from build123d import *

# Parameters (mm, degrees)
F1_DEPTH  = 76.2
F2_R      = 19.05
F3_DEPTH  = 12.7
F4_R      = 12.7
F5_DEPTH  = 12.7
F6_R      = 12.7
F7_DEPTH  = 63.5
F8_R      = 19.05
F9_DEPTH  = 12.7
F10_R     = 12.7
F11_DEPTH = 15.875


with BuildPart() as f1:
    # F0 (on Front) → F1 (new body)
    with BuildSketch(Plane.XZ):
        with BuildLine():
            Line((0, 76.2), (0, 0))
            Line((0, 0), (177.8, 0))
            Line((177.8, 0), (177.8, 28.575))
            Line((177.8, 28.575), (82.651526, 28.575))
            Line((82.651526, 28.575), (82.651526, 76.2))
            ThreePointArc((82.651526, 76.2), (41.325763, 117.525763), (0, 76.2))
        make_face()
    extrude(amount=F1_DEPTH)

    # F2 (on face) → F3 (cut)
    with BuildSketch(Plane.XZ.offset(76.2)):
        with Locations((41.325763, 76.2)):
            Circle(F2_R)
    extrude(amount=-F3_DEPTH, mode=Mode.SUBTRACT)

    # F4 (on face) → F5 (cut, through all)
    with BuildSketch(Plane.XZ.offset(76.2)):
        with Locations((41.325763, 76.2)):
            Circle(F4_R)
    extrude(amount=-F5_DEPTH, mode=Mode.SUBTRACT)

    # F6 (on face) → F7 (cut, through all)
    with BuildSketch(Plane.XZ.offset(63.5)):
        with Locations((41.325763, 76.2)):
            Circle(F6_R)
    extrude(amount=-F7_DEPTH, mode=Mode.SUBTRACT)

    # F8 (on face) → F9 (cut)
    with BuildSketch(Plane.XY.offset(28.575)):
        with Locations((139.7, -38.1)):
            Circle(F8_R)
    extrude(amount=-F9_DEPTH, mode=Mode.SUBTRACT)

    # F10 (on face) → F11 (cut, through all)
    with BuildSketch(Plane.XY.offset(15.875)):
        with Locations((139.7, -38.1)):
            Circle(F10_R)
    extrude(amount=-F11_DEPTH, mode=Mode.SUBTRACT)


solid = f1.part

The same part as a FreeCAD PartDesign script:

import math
import FreeCAD as App
import Part
import Sketcher
Q = App.Units.Quantity

doc = App.newDocument("Part")
body = doc.addObject("PartDesign::Body", "Body")

sketch1 = doc.addObject("Sketcher::SketchObject", "Sketch")
body.addObject(sketch1)
sketch1.AttachmentSupport = (doc.XZ_Plane, [""])
sketch1.MapMode = "FlatFace"
sketch1.addGeometry([
    Part.LineSegment(App.Vector(0, 76, 0), App.Vector(0, 0, 0)),
    Part.LineSegment(App.Vector(0, 0, 0), App.Vector(178, 0, 0)),
    Part.LineSegment(App.Vector(178, 0, 0), App.Vector(178, 29, 0)),
    Part.LineSegment(App.Vector(178, 29, 0), App.Vector(83, 29, 0)),
    Part.LineSegment(App.Vector(83, 29, 0), App.Vector(83, 76, 0)),
    Part.ArcOfCircle(Part.Circle(App.Vector(41, 76, 0), App.Vector(0, 0, 1), 41), math.radians(0), math.radians(180)),
], False)
sketch1.addConstraint([
    Sketcher.Constraint("Coincident", 0, 2, 1, 1),
    Sketcher.Constraint("Coincident", 1, 2, 2, 1),
    Sketcher.Constraint("Coincident", 2, 2, 3, 1),
    Sketcher.Constraint("Coincident", 3, 2, 4, 1),
    Sketcher.Constraint("Tangent", 4, 2, 5, 1),
    Sketcher.Constraint("Tangent", 5, 2, 0, 1),
    Sketcher.Constraint("Vertical", 0),
    Sketcher.Constraint("Horizontal", 1),
    Sketcher.Constraint("Vertical", 2),
    Sketcher.Constraint("Horizontal", 3),
    Sketcher.Constraint("Vertical", 4),
    Sketcher.Constraint("Coincident", 0, 2, -1, 1),
    Sketcher.Constraint("DistanceX", 1, 1, 1, 2, Q("7 in")),
    Sketcher.Constraint("DistanceY", 0, 2, 0, 1, Q("3 in")),
    Sketcher.Constraint("DistanceY", 2, 1, 2, 2, Q("1.125 in")),
    Sketcher.Constraint("Radius", 5, 41.325763),
])
pad1 = doc.addObject("PartDesign::Pad", "Pad")
body.addObject(pad1)
pad1.Profile = sketch1
pad1.Length = Q("3 in")

sketch2 = doc.addObject("Sketcher::SketchObject", "Sketch001")
body.addObject(sketch2)
sketch2.AttachmentSupport = (doc.XZ_Plane, [""])
sketch2.MapMode = "FlatFace"
sketch2.AttachmentOffset = App.Placement(App.Vector(0, 0, 3 * 25.4), App.Rotation())
sketch2.addGeometry(Part.Circle(App.Vector(41, 76, 0), App.Vector(0, 0, 1), 19), False)
sketch2.addConstraint([
    Sketcher.Constraint("Diameter", 0, Q("1.5 in")),
    Sketcher.Constraint("DistanceY", -1, 1, 0, 3, Q("3 in")),
    Sketcher.Constraint("DistanceX", -1, 1, 0, 3, 41.325763),
])
pocket1 = doc.addObject("PartDesign::Pocket", "Pocket")
body.addObject(pocket1)
pocket1.Profile = sketch2
pocket1.Length = Q("0.5 in")

sketch3 = doc.addObject("Sketcher::SketchObject", "Sketch002")
body.addObject(sketch3)
sketch3.AttachmentSupport = (doc.XZ_Plane, [""])
sketch3.MapMode = "FlatFace"
sketch3.AttachmentOffset = App.Placement(App.Vector(0, 0, 3 * 25.4), App.Rotation())
sketch3.addGeometry(Part.Circle(App.Vector(41, 76, 0), App.Vector(0, 0, 1), 13), False)
sketch3.addConstraint([
    Sketcher.Constraint("Diameter", 0, Q("1 in")),
    Sketcher.Constraint("DistanceY", -1, 1, 0, 3, Q("3 in")),
    Sketcher.Constraint("DistanceX", -1, 1, 0, 3, 41.325763),
])
pocket2 = doc.addObject("PartDesign::Pocket", "Pocket001")
body.addObject(pocket2)
pocket2.Profile = sketch3
pocket2.Length = Q("0.5 in")

sketch4 = doc.addObject("Sketcher::SketchObject", "Sketch003")
body.addObject(sketch4)
sketch4.AttachmentSupport = (doc.XZ_Plane, [""])
sketch4.MapMode = "FlatFace"
sketch4.AttachmentOffset = App.Placement(App.Vector(0, 0, 2.5 * 25.4), App.Rotation())
sketch4.addGeometry(Part.Circle(App.Vector(41, 76, 0), App.Vector(0, 0, 1), 13), False)
sketch4.addConstraint([
    Sketcher.Constraint("Diameter", 0, Q("1 in")),
    Sketcher.Constraint("DistanceY", -1, 1, 0, 3, Q("3 in")),
    Sketcher.Constraint("DistanceX", -1, 1, 0, 3, 41.325763),
])
pocket3 = doc.addObject("PartDesign::Pocket", "Pocket002")
body.addObject(pocket3)
pocket3.Profile = sketch4
pocket3.Type = "ThroughAll"

sketch5 = doc.addObject("Sketcher::SketchObject", "Sketch004")
body.addObject(sketch5)
sketch5.AttachmentSupport = (doc.XY_Plane, [""])
sketch5.MapMode = "FlatFace"
sketch5.AttachmentOffset = App.Placement(App.Vector(0, 0, 1.125 * 25.4), App.Rotation())
sketch5.addGeometry(Part.Circle(App.Vector(140, -38, 0), App.Vector(0, 0, 1), 19), False)
sketch5.addConstraint([
    Sketcher.Constraint("Diameter", 0, Q("1.5 in")),
    Sketcher.Constraint("DistanceX", -1, 1, 0, 3, Q("5.5 in")),
    Sketcher.Constraint("DistanceY", 0, 3, -1, 1, Q("1.5 in")),
])
pocket4 = doc.addObject("PartDesign::Pocket", "Pocket003")
body.addObject(pocket4)
pocket4.Profile = sketch5
pocket4.Length = Q("0.5 in")

sketch6 = doc.addObject("Sketcher::SketchObject", "Sketch005")
body.addObject(sketch6)
sketch6.AttachmentSupport = (doc.XY_Plane, [""])
sketch6.MapMode = "FlatFace"
sketch6.AttachmentOffset = App.Placement(App.Vector(0, 0, 0.625 * 25.4), App.Rotation())
sketch6.addGeometry(Part.Circle(App.Vector(140, -38, 0), App.Vector(0, 0, 1), 13), False)
sketch6.addConstraint([
    Sketcher.Constraint("Diameter", 0, Q("1 in")),
    Sketcher.Constraint("DistanceX", -1, 1, 0, 3, Q("5.5 in")),
    Sketcher.Constraint("DistanceY", 0, 3, -1, 1, Q("1.5 in")),
])
pocket5 = doc.addObject("PartDesign::Pocket", "Pocket004")
body.addObject(pocket5)
pocket5.Profile = sketch6
pocket5.Type = "ThroughAll"

doc.recompute()
